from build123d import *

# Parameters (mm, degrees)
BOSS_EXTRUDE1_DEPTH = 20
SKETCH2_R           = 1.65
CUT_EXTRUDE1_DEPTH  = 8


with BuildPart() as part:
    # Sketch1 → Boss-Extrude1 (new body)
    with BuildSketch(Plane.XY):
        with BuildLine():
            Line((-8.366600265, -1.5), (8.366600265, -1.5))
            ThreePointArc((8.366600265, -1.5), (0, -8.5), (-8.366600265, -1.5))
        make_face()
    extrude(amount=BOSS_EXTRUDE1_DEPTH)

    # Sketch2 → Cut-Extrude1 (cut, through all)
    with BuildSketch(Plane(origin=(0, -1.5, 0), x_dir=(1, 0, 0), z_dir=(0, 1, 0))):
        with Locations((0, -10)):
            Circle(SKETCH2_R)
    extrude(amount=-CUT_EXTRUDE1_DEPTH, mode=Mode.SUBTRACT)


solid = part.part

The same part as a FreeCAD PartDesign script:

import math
import FreeCAD as App
import Part
import Sketcher
Q = App.Units.Quantity

doc = App.newDocument("Part")
body = doc.addObject("PartDesign::Body", "Body")

# Sketch on XY plane
sketch1 = doc.addObject("Sketcher::SketchObject", "Sketch")
body.addObject(sketch1)
sketch1.AttachmentSupport = (doc.XY_Plane, [""])
sketch1.MapMode = "FlatFace"
sketch1.addGeometry(Part.LineSegment(App.Vector(8, -2, 0), App.Vector(-8, -2, 0)), False)
sketch1.addGeometry(Part.ArcOfCircle(Part.Circle(App.Vector(0, 0, 0), App.Vector(0, 0, 1), 8), math.radians(-170), math.radians(-10)), False)
sketch1.addConstraint(Sketcher.Constraint("Coincident", 0, 1, 1, 2))
sketch1.addConstraint(Sketcher.Constraint("Coincident", 1, 1, 0, 2))
sketch1.addConstraint(Sketcher.Constraint("Horizontal", 0))
sketch1.addConstraint(Sketcher.Constraint("Coincident", 1, 3, -1, 1))
sketch1.addConstraint(Sketcher.Constraint("Radius", 1, Q("8.5 mm")))
sketch1.addConstraint(Sketcher.Constraint("DistanceY", 0, 1, -1, 1, Q("1.5 mm")))
pad1 = doc.addObject("PartDesign::Pad", "Pad")
body.addObject(pad1)
pad1.Profile = sketch1
pad1.Length = 20

# Sketch on XZ plane
sketch2 = doc.addObject("Sketcher::SketchObject", "Sketch001")
body.addObject(sketch2)
sketch2.AttachmentSupport = (doc.XZ_Plane, [""])
sketch2.MapMode = "FlatFace"
sketch2.AttachmentOffset = App.Placement(App.Vector(0, 0, 1.5), App.Rotation())
sketch2.addGeometry(Part.Circle(App.Vector(0, 10, 0), App.Vector(0, 0, 1), 1.6), False)
sketch2.addConstraint(Sketcher.Constraint("PointOnObject", 0, 3, -2))
sketch2.addConstraint(Sketcher.Constraint("Diameter", 0, Q("3.3 mm")))
sketch2.addConstraint(Sketcher.Constraint("DistanceY", -1, 1, 0, 3, Q("10 mm")))
pocket1 = doc.addObject("PartDesign::Pocket", "Pocket")
body.addObject(pocket1)
pocket1.Profile = sketch2
pocket1.Type = "ThroughAll"
pocket1.Reversed = True

doc.recompute()
